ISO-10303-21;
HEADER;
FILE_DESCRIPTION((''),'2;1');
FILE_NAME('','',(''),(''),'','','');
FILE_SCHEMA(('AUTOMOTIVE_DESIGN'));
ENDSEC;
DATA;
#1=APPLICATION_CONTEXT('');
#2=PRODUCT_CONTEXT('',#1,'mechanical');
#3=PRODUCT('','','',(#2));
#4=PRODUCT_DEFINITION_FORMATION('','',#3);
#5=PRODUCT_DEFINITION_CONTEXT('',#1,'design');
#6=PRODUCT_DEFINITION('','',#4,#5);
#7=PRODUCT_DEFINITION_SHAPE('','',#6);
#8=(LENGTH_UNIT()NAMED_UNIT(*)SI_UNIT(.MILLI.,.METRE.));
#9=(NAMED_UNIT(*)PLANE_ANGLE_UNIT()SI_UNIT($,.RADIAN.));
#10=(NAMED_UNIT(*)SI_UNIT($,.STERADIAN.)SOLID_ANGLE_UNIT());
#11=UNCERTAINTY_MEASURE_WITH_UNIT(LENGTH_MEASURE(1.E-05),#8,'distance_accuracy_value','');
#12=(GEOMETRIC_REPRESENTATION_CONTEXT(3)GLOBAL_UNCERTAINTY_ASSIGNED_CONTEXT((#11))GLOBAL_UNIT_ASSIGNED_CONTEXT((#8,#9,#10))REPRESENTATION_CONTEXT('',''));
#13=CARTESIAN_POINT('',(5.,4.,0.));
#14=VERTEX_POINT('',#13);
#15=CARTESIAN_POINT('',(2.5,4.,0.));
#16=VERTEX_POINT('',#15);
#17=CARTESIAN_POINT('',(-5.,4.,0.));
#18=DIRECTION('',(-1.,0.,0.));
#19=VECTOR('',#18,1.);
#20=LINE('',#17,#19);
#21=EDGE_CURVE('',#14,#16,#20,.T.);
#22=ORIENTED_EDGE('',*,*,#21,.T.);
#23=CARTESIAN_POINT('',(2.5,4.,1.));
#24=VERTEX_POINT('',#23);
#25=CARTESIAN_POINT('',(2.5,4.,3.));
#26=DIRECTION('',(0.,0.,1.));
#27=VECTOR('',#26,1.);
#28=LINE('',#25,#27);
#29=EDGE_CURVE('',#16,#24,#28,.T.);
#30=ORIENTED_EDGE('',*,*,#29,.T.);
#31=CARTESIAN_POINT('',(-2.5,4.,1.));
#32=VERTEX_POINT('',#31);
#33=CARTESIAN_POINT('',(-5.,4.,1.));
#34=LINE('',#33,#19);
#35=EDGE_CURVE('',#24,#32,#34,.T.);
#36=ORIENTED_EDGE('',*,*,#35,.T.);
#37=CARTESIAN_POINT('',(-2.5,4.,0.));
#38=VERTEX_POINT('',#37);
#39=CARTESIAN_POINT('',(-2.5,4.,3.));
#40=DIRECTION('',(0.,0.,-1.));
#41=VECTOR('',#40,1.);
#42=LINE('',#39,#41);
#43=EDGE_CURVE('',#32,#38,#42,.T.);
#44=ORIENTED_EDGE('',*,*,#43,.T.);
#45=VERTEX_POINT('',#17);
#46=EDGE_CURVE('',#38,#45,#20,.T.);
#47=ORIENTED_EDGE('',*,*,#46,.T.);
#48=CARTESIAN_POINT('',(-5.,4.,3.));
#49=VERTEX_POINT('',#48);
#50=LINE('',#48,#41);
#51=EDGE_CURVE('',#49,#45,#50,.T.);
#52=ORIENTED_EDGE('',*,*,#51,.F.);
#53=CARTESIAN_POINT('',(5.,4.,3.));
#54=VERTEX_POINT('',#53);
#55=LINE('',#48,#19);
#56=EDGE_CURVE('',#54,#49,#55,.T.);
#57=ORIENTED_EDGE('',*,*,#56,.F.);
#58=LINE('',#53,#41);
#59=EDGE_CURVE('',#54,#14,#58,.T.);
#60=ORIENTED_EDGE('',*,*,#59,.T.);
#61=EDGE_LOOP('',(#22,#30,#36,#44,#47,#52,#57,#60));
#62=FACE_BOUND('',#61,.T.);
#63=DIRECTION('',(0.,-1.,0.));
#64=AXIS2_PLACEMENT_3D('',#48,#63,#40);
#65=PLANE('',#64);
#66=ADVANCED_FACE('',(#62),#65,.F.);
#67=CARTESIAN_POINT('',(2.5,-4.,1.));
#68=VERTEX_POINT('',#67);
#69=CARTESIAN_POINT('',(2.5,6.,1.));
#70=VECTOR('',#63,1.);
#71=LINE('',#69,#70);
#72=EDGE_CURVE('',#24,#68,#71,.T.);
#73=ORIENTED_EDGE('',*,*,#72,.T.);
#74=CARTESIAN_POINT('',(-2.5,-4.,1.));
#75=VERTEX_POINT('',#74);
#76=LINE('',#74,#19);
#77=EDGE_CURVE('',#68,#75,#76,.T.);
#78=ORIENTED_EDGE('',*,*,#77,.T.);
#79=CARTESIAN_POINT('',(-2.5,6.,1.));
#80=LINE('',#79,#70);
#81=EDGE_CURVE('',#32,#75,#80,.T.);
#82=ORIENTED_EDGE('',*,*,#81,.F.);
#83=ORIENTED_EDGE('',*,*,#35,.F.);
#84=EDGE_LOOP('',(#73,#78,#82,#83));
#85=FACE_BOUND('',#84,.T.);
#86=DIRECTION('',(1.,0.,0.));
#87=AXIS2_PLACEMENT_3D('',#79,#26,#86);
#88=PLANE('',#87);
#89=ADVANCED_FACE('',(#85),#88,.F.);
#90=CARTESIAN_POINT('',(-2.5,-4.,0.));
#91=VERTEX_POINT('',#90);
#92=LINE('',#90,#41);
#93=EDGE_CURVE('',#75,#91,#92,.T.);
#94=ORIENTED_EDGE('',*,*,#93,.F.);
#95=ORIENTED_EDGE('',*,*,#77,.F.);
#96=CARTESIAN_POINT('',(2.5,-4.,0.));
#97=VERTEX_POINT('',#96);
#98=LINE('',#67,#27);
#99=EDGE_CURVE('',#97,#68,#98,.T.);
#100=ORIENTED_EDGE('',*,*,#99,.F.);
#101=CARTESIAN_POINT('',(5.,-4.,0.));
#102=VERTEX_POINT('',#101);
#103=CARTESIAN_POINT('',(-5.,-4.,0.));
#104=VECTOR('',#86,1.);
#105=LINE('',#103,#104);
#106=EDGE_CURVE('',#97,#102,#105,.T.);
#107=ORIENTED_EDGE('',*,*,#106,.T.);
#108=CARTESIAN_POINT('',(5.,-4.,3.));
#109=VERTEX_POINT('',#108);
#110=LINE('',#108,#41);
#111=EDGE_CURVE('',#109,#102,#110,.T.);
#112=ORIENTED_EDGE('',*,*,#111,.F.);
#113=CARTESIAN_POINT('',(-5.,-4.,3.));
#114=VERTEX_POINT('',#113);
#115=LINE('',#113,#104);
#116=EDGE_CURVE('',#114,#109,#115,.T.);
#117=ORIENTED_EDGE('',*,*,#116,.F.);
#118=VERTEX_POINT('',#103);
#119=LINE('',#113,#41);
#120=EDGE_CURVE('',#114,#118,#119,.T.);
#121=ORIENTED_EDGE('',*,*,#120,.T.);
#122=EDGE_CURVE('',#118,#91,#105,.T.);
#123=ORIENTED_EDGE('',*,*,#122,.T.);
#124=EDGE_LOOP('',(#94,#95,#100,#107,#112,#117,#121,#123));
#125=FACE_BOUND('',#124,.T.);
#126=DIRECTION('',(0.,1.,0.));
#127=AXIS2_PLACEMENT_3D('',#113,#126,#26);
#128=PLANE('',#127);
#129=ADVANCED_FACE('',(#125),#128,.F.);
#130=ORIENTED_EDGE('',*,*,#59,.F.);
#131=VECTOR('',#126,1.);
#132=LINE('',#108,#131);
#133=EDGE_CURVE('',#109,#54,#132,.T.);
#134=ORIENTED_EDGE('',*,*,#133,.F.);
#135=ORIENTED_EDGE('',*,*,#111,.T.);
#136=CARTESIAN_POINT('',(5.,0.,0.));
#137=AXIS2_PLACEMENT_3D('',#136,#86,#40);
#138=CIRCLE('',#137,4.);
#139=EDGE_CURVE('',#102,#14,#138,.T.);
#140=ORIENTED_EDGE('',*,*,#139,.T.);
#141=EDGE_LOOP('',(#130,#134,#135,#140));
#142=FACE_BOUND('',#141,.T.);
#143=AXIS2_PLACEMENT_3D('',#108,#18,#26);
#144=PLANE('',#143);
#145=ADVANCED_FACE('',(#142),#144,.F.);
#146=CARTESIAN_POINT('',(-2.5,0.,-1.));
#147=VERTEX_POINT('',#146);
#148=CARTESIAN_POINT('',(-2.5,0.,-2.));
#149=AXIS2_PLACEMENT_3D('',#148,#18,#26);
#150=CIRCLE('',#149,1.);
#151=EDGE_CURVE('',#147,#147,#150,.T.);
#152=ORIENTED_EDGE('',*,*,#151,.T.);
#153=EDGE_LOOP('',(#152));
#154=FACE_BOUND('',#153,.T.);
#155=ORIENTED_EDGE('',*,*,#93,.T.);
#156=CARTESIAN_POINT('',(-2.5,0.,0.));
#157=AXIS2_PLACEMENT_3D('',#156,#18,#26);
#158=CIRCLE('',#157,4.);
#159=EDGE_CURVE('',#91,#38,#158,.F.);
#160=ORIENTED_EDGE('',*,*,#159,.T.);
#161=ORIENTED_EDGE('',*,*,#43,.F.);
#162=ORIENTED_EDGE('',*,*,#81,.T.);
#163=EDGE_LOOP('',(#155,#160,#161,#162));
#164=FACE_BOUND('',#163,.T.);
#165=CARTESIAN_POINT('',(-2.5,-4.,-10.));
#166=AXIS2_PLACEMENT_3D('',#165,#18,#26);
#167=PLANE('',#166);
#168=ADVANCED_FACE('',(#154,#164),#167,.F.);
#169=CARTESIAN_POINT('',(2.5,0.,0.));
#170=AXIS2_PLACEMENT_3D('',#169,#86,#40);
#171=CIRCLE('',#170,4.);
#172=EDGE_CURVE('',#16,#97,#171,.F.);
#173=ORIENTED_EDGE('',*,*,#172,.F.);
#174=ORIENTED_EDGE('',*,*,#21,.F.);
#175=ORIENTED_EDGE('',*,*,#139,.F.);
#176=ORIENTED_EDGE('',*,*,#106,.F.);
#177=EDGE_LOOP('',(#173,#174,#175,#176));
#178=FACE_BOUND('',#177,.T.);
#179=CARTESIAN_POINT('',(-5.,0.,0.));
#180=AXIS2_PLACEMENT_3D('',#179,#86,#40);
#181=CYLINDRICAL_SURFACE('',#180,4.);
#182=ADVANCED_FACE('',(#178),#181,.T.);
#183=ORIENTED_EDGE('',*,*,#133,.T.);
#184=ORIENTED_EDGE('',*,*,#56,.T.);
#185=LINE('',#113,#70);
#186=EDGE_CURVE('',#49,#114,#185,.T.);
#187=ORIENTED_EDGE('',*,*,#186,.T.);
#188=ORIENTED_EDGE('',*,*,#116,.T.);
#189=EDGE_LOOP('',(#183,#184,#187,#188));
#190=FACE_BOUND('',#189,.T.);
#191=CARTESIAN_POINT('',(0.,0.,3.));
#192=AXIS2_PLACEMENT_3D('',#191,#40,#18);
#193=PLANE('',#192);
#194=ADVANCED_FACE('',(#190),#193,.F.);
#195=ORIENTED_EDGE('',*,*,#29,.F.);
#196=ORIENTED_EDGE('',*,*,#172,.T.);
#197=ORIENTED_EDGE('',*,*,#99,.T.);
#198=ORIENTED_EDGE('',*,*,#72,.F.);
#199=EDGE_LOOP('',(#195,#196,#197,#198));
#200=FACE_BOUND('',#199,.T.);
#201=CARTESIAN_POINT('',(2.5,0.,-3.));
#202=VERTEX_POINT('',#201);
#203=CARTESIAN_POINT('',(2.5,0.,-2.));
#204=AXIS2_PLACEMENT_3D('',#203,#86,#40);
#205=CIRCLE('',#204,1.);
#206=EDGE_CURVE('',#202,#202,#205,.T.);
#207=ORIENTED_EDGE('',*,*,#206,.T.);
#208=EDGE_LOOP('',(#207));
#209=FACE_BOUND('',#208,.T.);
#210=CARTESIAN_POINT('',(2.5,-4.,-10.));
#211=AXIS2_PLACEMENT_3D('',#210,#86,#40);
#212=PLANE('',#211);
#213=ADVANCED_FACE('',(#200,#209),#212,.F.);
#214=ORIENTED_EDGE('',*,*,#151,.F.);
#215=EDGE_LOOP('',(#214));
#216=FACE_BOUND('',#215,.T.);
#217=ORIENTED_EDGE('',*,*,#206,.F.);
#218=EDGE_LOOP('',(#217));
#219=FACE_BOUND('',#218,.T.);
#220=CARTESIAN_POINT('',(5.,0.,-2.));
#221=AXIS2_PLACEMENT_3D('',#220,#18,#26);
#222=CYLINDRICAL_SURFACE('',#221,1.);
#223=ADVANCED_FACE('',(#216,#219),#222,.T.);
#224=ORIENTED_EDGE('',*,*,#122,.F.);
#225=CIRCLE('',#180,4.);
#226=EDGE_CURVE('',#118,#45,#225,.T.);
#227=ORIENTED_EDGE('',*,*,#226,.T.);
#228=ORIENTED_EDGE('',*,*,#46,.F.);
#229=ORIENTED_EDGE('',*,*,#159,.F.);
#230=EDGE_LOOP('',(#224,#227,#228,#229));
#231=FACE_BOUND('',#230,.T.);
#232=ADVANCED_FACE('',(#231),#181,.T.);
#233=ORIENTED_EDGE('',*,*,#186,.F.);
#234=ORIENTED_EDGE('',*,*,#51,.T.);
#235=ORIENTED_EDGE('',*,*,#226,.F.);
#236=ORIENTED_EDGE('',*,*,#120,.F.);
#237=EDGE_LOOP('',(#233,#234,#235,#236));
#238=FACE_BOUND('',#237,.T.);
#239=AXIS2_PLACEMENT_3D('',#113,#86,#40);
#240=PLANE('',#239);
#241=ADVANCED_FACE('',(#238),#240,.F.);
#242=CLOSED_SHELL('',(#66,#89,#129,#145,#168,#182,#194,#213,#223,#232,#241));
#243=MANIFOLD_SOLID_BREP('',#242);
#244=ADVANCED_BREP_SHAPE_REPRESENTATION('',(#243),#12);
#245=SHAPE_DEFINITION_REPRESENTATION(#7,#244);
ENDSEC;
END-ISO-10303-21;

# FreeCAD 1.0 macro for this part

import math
import FreeCAD as App
import Part
import Sketcher
from FreeCAD import Vector
Q = App.Units.Quantity

doc = App.newDocument("Part")
params = doc.addObject("Spreadsheet::Sheet", "Params")
for row, (alias, value) in enumerate([
    ("sketch1_width", "10 mm"),
    ("sketch1_height", "8 mm"),
    ("pad1_length", "3 mm"),
    ("sketch2_radius", "4 mm"),
    ("pad2_length", "10 mm"),
    ("sketch3_width", "5 mm"),
    ("sketch3_height", "8 mm"),
    ("pocket1_length", "10 mm"),
    ("sketch4_diameter", "2 mm"),
    ("pad3_length", "10 mm"),
    ("sketch5_width", "5 mm"),
    ("sketch5_height", "1 mm"),
    ("pocket2_length", "10 mm"),
], start=1):
    params.set(f"A{row}", alias)
    params.set(f"B{row}", "=" + value)
    params.setAlias(f"B{row}", alias)

body = doc.addObject("PartDesign::Body", "Body")

# Sketch on XY plane
sketch1 = body.newObject("Sketcher::SketchObject", "Sketch")
sketch1.AttachmentSupport = (doc.getObject("XY_Plane"), [""])
sketch1.MapMode = "FlatFace"
sketch1.addGeometry([
    Part.LineSegment(Vector(-5, 4, 0), Vector(-5, -4, 0)),
    Part.LineSegment(Vector(-5, -4, 0), Vector(5, -4, 0)),
    Part.LineSegment(Vector(5, -4, 0), Vector(5, 4, 0)),
    Part.LineSegment(Vector(5, 4, 0), Vector(-5, 4, 0)),
], False)
sketch1.addConstraint([
    Sketcher.Constraint("Coincident", 0, 2, 1, 1),
    Sketcher.Constraint("Coincident", 1, 2, 2, 1),
    Sketcher.Constraint("Coincident", 2, 2, 3, 1),
    Sketcher.Constraint("Coincident", 3, 2, 0, 1),
    Sketcher.Constraint("Vertical", 0),
    Sketcher.Constraint("Horizontal", 1),
    Sketcher.Constraint("Vertical", 2),
    Sketcher.Constraint("Horizontal", 3),
    Sketcher.Constraint("Symmetric", 0, 2, 2, 2, -1, 1),
    Sketcher.Constraint("DistanceX", 1, 1, 1, 2, Q("10 mm")),
    Sketcher.Constraint("DistanceY", 0, 2, 0, 1, Q("8 mm")),
])
sketch1.setExpression("Constraints[9]", "Params.sketch1_width")
sketch1.setExpression("Constraints[10]", "Params.sketch1_height")
pad1 = body.newObject("PartDesign::Pad", "Pad")
pad1.Profile = sketch1
pad1.setExpression("Length", "Params.pad1_length")

# Sketch on YZ plane
sketch2 = body.newObject("Sketcher::SketchObject", "Sketch001")
sketch2.AttachmentSupport = (doc.getObject("YZ_Plane"), [""])
sketch2.MapMode = "FlatFace"
sketch2.AttachmentOffset = App.Placement(Vector(0, 0, 5), App.Rotation())
sketch2.addGeometry([
    Part.ArcOfCircle(Part.Circle(Vector(0, 0, 0), Vector(0, 0, 1), 4), math.radians(-90), math.radians(0)),
    Part.LineSegment(Vector(4, 0, 0), Vector(-4, 0, 0)),
    Part.ArcOfCircle(Part.Circle(Vector(0, 0, 0), Vector(0, 0, 1), 4), math.radians(180), math.radians(270)),
], False)
sketch2.addConstraint([
    Sketcher.Constraint("Coincident", 0, 2, 1, 1),
    Sketcher.Constraint("Coincident", 1, 2, 2, 1),
    Sketcher.Constraint("Tangent", 2, 2, 0, 1),
    Sketcher.Constraint("Horizontal", 1),
    Sketcher.Constraint("Coincident", 0, 3, -1, 1),
    Sketcher.Constraint("Equal", 0, 2),
    Sketcher.Constraint("PointOnObject", 0, 2, -1),
    Sketcher.Constraint("PointOnObject", 2, 2, -2),
    Sketcher.Constraint("Radius", 0, Q("4 mm")),
])
sketch2.setExpression("Constraints[8]", "Params.sketch2_radius")
pad2 = body.newObject("PartDesign::Pad", "Pad001")
pad2.Profile = sketch2
pad2.setExpression("Length", "Params.pad2_length")
pad2.Reversed = True

# Sketch on XY plane
sketch3 = body.newObject("Sketcher::SketchObject", "Sketch002")
sketch3.AttachmentSupport = (doc.getObject("XY_Plane"), [""])
sketch3.MapMode = "FlatFace"
sketch3.addGeometry([
    Part.LineSegment(Vector(-2.5, 4, 0), Vector(-2.5, -4, 0)),
    Part.LineSegment(Vector(-2.5, -4, 0), Vector(2.5, -4, 0)),
    Part.LineSegment(Vector(2.5, -4, 0), Vector(2.5, 4, 0)),
    Part.LineSegment(Vector(2.5, 4, 0), Vector(-2.5, 4, 0)),
], False)
sketch3.addConstraint([
    Sketcher.Constraint("Coincident", 0, 2, 1, 1),
    Sketcher.Constraint("Coincident", 1, 2, 2, 1),
    Sketcher.Constraint("Coincident", 2, 2, 3, 1),
    Sketcher.Constraint("Coincident", 3, 2, 0, 1),
    Sketcher.Constraint("Vertical", 0),
    Sketcher.Constraint("Horizontal", 1),
    Sketcher.Constraint("Vertical", 2),
    Sketcher.Constraint("Horizontal", 3),
    Sketcher.Constraint("Symmetric", 0, 2, 2, 2, -1, 1),
    Sketcher.Constraint("DistanceX", 1, 1, 1, 2, Q("5 mm")),
    Sketcher.Constraint("DistanceY", 0, 2, 0, 1, Q("8 mm")),
])
sketch3.setExpression("Constraints[9]", "Params.sketch3_width")
sketch3.setExpression("Constraints[10]", "Params.sketch3_height")
pocket1 = body.newObject("PartDesign::Pocket", "Pocket")
pocket1.Profile = sketch3
pocket1.setExpression("Length", "Params.pocket1_length")

# Sketch on YZ plane
sketch4 = body.newObject("Sketcher::SketchObject", "Sketch003")
sketch4.AttachmentSupport = (doc.getObject("YZ_Plane"), [""])
sketch4.MapMode = "FlatFace"
sketch4.AttachmentOffset = App.Placement(Vector(0, 0, -5), App.Rotation())
sketch4.addGeometry(Part.Circle(Vector(0, -2, 0), Vector(0, 0, 1), 1), False)
sketch4.addConstraint([
    Sketcher.Constraint("PointOnObject", 0, 3, -2),
    Sketcher.Constraint("Diameter", 0, Q("2 mm")),
    Sketcher.Constraint("DistanceY", 0, 3, -1, 1, Q("2 mm")),
])
sketch4.setExpression("Constraints[1]", "Params.sketch4_diameter")
pad3 = body.newObject("PartDesign::Pad", "Pad002")
pad3.Profile = sketch4
pad3.setExpression("Length", "Params.pad3_length")

# Sketch on XZ plane
sketch5 = body.newObject("Sketcher::SketchObject", "Sketch004")
sketch5.AttachmentSupport = (doc.getObject("XZ_Plane"), [""])
sketch5.MapMode = "FlatFace"
sketch5.AttachmentOffset = App.Placement(Vector(0, 0, 4), App.Rotation())
sketch5.addGeometry([
    Part.LineSegment(Vector(2.5, 0, 0), Vector(2.5, 1, 0)),
    Part.LineSegment(Vector(2.5, 1, 0), Vector(-2.5, 1, 0)),
    Part.LineSegment(Vector(-2.5, 1, 0), Vector(-2.5, 0, 0)),
    Part.LineSegment(Vector(-2.5, 0, 0), Vector(2.5, 0, 0)),
], False)
sketch5.addConstraint([
    Sketcher.Constraint("Coincident", 0, 2, 1, 1),
    Sketcher.Constraint("Coincident", 1, 2, 2, 1),
    Sketcher.Constraint("Coincident", 2, 2, 3, 1),
    Sketcher.Constraint("Coincident", 3, 2, 0, 1),
    Sketcher.Constraint("Vertical", 0),
    Sketcher.Constraint("Horizontal", 1),
    Sketcher.Constraint("Vertical", 2),
    Sketcher.Constraint("Horizontal", 3),
    Sketcher.Constraint("Symmetric", 2, 2, 3, 2, -1, 1),
    Sketcher.Constraint("DistanceX", 1, 2, 1, 1, Q("5 mm")),
    Sketcher.Constraint("DistanceY", 0, 1, 0, 2, Q("1 mm")),
])
sketch5.setExpression("Constraints[9]", "Params.sketch5_width")
sketch5.setExpression("Constraints[10]", "Params.sketch5_height")
pocket2 = body.newObject("PartDesign::Pocket", "Pocket001")
pocket2.Profile = sketch5
pocket2.setExpression("Length", "Params.pocket2_length")

doc.recompute()
